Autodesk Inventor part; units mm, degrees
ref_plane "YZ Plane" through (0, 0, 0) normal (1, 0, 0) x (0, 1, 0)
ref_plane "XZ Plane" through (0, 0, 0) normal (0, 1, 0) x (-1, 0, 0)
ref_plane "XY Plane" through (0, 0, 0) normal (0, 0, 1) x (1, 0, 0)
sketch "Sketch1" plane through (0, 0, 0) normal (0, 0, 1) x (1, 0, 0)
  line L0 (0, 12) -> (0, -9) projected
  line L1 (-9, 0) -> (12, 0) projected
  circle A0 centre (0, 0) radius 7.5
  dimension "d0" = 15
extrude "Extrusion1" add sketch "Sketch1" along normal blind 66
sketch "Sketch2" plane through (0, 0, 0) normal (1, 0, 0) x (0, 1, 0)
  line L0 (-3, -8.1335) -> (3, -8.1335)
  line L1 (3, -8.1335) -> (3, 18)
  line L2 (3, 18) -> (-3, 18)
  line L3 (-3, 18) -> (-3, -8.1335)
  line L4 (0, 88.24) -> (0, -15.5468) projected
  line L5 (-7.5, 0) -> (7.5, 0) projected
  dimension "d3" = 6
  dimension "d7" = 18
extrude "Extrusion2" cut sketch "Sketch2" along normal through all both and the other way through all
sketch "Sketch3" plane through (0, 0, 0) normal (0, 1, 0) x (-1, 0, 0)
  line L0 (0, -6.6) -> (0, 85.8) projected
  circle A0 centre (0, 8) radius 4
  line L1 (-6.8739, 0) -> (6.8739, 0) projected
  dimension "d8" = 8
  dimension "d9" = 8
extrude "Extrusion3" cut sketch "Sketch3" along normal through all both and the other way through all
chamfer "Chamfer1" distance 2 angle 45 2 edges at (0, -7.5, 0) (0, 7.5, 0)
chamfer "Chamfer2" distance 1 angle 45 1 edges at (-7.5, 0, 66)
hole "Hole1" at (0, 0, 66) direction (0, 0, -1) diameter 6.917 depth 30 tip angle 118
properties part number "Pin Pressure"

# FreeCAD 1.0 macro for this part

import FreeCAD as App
import Part
import Sketcher
from FreeCAD import Vector
Q = App.Units.Quantity


def edges_at(feature, points):
    """Names of the edges that pass closest to the given points."""
    edges = feature.Shape.Edges
    near = lambda p: min(range(len(edges)), key=lambda i: edges[i].distToShape(Part.Vertex(*p))[0])
    return sorted({f"Edge{near(p) + 1}" for p in points})

doc = App.newDocument("Part")
body = doc.addObject("PartDesign::Body", "Body")

# Sketch on XY plane
sketch1 = doc.addObject("Sketcher::SketchObject", "Sketch")
body.addObject(sketch1)
sketch1.AttachmentSupport = (doc.XY_Plane, [""])
sketch1.MapMode = "FlatFace"
sketch1.addGeometry(Part.Circle(Vector(0, 0, 0), Vector(0, 0, 1), 8), False)
sketch1.addConstraint([
    Sketcher.Constraint("Coincident", 0, 3, -1, 1),
    Sketcher.Constraint("Diameter", 0, Q("15 mm")),
])
pad1 = doc.addObject("PartDesign::Pad", "Pad")
body.addObject(pad1)
pad1.Profile = sketch1
pad1.Length = 66

# Sketch on YZ plane
sketch2 = doc.addObject("Sketcher::SketchObject", "Sketch001")
body.addObject(sketch2)
sketch2.AttachmentSupport = (doc.YZ_Plane, [""])
sketch2.MapMode = "FlatFace"
sketch2.addGeometry([
    Part.LineSegment(Vector(-3, -8, 0), Vector(3, -8, 0)),
    Part.LineSegment(Vector(3, -8, 0), Vector(3, 18, 0)),
    Part.LineSegment(Vector(3, 18, 0), Vector(-3, 18, 0)),
    Part.LineSegment(Vector(-3, 18, 0), Vector(-3, -8, 0)),
], False)
sketch2.addConstraint([
    Sketcher.Constraint("Coincident", 0, 2, 1, 1),
    Sketcher.Constraint("Coincident", 1, 2, 2, 1),
    Sketcher.Constraint("Coincident", 2, 2, 3, 1),
    Sketcher.Constraint("Coincident", 3, 2, 0, 1),
    Sketcher.Constraint("Horizontal", 0),
    Sketcher.Constraint("Vertical", 1),
    Sketcher.Constraint("Horizontal", 2),
    Sketcher.Constraint("Vertical", 3),
    Sketcher.Constraint("DistanceX", 0, 1, 0, 2, Q("6 mm")),
    Sketcher.Constraint("DistanceY", -1, 1, 1, 2, Q("18 mm")),
    Sketcher.Constraint("DistanceX", -1, 1, 0, 2, Q("3 mm")),
    Sketcher.Constraint("DistanceY", 1, 1, 1, 2, Q("26.1335 mm")),
])
pocket1 = doc.addObject("PartDesign::Pocket", "Pocket")
body.addObject(pocket1)
pocket1.Profile = sketch2
pocket1.Type = "ThroughAll"
pocket1.Midplane = True

# Sketch on XZ plane
sketch3 = doc.addObject("Sketcher::SketchObject", "Sketch002")
body.addObject(sketch3)
sketch3.AttachmentSupport = (doc.XZ_Plane, [""])
sketch3.MapMode = "FlatFace"
sketch3.addGeometry(Part.Circle(Vector(0, 8, 0), Vector(0, 0, 1), 4), False)
sketch3.addConstraint([
    Sketcher.Constraint("PointOnObject", 0, 3, -2),
    Sketcher.Constraint("Diameter", 0, Q("8 mm")),
    Sketcher.Constraint("DistanceY", -1, 1, 0, 3, Q("8 mm")),
])
pocket2 = doc.addObject("PartDesign::Pocket", "Pocket001")
body.addObject(pocket2)
pocket2.Profile = sketch3
pocket2.Type = "ThroughAll"
pocket2.Midplane = True
doc.recompute()

chamfer = doc.addObject("PartDesign::Chamfer", "Chamfer")
body.addObject(chamfer)
chamfer.Base = (pocket2, edges_at(pocket2, [(0, -7.5, 0), (0, 7.5, 0)]))
chamfer.Size = 2
doc.recompute()

chamfer2 = doc.addObject("PartDesign::Chamfer", "Chamfer001")
body.addObject(chamfer2)
chamfer2.Base = (chamfer, edges_at(chamfer, [(-7.5, 0, 66)]))
chamfer2.Size = 1

# Sketch on XY plane
sketch4 = doc.addObject("Sketcher::SketchObject", "Sketch003")
body.addObject(sketch4)
sketch4.AttachmentSupport = (doc.XY_Plane, [""])
sketch4.MapMode = "FlatFace"
sketch4.AttachmentOffset = App.Placement(Vector(0, 0, 66), App.Rotation())
sketch4.addGeometry(Part.Circle(Vector(0, 0, 0), Vector(0, 0, 1), 3.5), False)
sketch4.addConstraint([
    Sketcher.Constraint("Coincident", 0, 3, -1, 1),
    Sketcher.Constraint("Diameter", 0, Q("6.917 mm")),
])
doc.recompute()
hole = doc.addObject("PartDesign::Hole", "Hole")
body.addObject(hole)
hole.Profile = sketch4
hole.ThreadType = "None"
hole.Diameter = 6.917
hole.DepthType = "Dimension"
hole.Depth = 30
hole.DrillPoint = "Angled"
hole.DrillPointAngle = 118

doc.recompute()
